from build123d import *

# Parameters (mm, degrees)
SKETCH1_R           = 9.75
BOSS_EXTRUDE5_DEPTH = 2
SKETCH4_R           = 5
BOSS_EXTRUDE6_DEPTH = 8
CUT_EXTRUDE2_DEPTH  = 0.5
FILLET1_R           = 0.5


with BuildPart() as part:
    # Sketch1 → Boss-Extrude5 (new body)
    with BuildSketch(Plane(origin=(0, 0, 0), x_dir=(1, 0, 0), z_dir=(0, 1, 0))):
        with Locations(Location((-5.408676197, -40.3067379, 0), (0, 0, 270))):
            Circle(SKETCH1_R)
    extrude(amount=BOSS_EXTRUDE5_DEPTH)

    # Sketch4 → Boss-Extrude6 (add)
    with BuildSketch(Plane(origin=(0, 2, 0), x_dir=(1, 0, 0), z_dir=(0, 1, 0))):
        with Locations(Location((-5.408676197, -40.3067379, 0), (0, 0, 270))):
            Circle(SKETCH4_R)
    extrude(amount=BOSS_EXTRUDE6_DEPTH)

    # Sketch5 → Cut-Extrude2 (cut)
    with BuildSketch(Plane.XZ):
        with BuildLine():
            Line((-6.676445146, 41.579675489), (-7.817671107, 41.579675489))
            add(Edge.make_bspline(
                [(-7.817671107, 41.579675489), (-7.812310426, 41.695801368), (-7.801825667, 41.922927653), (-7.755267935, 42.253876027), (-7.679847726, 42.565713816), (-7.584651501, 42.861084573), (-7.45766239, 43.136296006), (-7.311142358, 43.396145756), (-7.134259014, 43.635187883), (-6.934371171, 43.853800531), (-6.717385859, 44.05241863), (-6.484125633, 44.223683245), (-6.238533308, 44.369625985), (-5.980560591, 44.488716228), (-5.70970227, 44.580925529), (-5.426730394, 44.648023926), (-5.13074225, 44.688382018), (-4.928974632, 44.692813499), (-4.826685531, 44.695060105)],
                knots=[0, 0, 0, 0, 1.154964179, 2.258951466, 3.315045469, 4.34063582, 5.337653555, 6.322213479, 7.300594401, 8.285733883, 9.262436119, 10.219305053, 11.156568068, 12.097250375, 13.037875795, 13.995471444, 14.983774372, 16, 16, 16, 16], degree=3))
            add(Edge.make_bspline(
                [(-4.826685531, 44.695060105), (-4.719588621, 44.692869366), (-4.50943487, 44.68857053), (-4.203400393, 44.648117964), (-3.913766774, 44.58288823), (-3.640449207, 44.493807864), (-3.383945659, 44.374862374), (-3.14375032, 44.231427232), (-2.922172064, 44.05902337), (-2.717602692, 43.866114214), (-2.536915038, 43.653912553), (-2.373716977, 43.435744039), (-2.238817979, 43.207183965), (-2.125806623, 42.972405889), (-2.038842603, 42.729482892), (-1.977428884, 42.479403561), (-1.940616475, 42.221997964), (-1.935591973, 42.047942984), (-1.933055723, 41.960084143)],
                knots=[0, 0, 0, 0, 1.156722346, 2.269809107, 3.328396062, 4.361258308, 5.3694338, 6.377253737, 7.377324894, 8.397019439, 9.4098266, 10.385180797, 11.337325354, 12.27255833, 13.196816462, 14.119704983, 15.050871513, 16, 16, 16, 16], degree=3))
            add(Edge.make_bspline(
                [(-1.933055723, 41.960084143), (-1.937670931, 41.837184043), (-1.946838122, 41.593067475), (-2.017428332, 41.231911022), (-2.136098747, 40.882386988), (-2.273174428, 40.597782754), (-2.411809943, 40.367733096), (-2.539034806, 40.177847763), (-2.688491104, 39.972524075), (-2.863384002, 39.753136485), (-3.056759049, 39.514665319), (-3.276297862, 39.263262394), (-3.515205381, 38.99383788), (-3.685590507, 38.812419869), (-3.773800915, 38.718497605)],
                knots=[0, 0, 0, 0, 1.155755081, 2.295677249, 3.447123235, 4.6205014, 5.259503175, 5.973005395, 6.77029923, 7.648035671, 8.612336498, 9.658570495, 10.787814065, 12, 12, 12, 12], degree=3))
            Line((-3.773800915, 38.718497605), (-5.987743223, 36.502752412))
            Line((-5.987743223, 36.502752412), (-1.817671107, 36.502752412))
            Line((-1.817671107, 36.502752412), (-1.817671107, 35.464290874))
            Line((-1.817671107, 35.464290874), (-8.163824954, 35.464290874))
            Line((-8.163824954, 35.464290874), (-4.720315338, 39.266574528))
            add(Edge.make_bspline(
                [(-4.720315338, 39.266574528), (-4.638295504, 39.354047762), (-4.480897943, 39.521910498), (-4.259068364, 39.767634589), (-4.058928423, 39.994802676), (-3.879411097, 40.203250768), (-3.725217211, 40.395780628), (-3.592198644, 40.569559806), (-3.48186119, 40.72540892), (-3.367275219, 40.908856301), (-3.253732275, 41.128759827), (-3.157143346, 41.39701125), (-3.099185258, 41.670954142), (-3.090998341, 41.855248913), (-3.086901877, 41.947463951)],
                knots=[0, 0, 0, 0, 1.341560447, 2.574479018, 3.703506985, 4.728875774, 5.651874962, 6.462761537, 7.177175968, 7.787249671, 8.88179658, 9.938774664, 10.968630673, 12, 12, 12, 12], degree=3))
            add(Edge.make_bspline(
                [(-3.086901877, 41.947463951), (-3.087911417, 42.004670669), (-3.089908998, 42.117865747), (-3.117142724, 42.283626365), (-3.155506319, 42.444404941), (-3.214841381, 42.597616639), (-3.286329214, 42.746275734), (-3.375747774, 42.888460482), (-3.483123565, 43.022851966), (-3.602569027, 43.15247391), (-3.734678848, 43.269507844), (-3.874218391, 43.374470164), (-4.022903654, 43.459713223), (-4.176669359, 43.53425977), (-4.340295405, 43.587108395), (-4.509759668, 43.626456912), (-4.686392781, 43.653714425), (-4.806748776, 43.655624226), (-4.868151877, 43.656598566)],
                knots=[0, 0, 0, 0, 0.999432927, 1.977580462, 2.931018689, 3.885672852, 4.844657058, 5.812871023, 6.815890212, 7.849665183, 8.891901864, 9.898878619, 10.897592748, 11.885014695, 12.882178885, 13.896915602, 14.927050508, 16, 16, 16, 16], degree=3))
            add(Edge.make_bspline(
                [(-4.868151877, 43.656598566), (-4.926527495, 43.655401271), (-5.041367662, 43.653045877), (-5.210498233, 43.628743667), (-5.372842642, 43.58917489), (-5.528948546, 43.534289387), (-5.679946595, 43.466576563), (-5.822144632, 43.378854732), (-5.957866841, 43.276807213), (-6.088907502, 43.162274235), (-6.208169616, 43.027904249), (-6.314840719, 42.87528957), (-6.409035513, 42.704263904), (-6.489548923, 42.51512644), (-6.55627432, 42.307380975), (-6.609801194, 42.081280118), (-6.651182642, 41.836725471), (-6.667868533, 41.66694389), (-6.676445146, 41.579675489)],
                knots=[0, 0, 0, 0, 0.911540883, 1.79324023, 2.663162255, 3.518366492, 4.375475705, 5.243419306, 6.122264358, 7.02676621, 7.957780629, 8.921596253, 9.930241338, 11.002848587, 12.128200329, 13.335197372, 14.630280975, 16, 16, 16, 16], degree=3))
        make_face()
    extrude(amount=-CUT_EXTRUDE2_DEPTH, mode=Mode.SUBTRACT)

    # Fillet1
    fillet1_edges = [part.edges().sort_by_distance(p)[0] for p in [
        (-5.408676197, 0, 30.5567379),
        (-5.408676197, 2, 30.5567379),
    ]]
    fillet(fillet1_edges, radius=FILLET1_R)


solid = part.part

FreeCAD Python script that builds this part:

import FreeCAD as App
import Part
import Sketcher
Q = App.Units.Quantity


def edges_at(feature, points):
    """Names of the edges that pass closest to the given points."""
    edges = feature.Shape.Edges
    near = lambda p: min(range(len(edges)), key=lambda i: edges[i].distToShape(Part.Vertex(*p))[0])
    return sorted({f"Edge{near(p) + 1}" for p in points})

doc = App.newDocument("Part")
body = doc.addObject("PartDesign::Body", "Body")

# Sketch on XZ plane
sketch1 = body.newObject("Sketcher::SketchObject", "Sketch")
sketch1.AttachmentSupport = (doc.getObject("XZ_Plane"), [""])
sketch1.MapMode = "FlatFace"
sketch1.addGeometry(Part.Circle(App.Vector(-5.408676, 40.306738, 0), App.Vector(0, 0, 1), 9.75), False)
sketch1.addConstraint([
    Sketcher.Constraint("Diameter", 0, Q("19.5 mm")),
    Sketcher.Constraint("DistanceX", 0, 3, -1, 1, Q("5.408676 mm")),
    Sketcher.Constraint("DistanceY", -1, 1, 0, 3, Q("40.306738 mm")),
])
pad1 = body.newObject("PartDesign::Pad", "Pad")
pad1.Profile = sketch1
pad1.Length = 2
pad1.Reversed = True

# Sketch on XZ plane
sketch2 = body.newObject("Sketcher::SketchObject", "Sketch001")
sketch2.AttachmentSupport = (doc.getObject("XZ_Plane"), [""])
sketch2.MapMode = "FlatFace"
sketch2.AttachmentOffset = App.Placement(App.Vector(0, 0, -2), App.Rotation())
sketch2.addGeometry(Part.Circle(App.Vector(-5.408676, 40.306738, 0), App.Vector(0, 0, 1), 5), False)
sketch2.addConstraint([
    Sketcher.Constraint("Diameter", 0, Q("10 mm")),
    Sketcher.Constraint("DistanceX", 0, 3, -1, 1, Q("5.408676 mm")),
    Sketcher.Constraint("DistanceY", -1, 1, 0, 3, Q("40.306738 mm")),
])
pad2 = body.newObject("PartDesign::Pad", "Pad001")
pad2.Profile = sketch2
pad2.Length = 8
pad2.Reversed = True

# Sketch on XZ plane
sketch3 = body.newObject("Sketcher::SketchObject", "Sketch002")
sketch3.AttachmentSupport = (doc.getObject("XZ_Plane"), [""])
sketch3.MapMode = "FlatFace"
sketch3.addGeometry([
    Part.LineSegment(App.Vector(-7.817671, 41.579675, 0), App.Vector(-6.676445, 41.579675, 0)),  # 0
    Part.BSplineCurve([App.Vector(-4.868152, 43.656599, 0), App.Vector(-4.926527, 43.655401, 0), App.Vector(-5.041368, 43.653046, 0), App.Vector(-5.210498, 43.628744, 0), App.Vector(-5.372843, 43.589175, 0), App.Vector(-5.528949, 43.534289, 0), App.Vector(-5.679947, 43.466577, 0), App.Vector(-5.822145, 43.378855, 0), App.Vector(-5.957867, 43.276807, 0), App.Vector(-6.088908, 43.162274, 0), App.Vector(-6.20817, 43.027904, 0), App.Vector(-6.314841, 42.87529, 0), App.Vector(-6.409036, 42.704264, 0), App.Vector(-6.489549, 42.515126, 0), App.Vector(-6.556274, 42.307381, 0), App.Vector(-6.609801, 42.08128, 0), App.Vector(-6.651183, 41.836725, 0), App.Vector(-6.667869, 41.666944, 0), App.Vector(-6.676445, 41.579675, 0)], [4, 1, 1, 1, 1, 1, 1, 1, 1, 1, 1, 1, 1, 1, 1, 1, 4], [0, 0.911540883, 1.79324023, 2.663162255, 3.518366492, 4.375475705, 5.243419306, 6.122264358, 7.02676621, 7.957780629, 8.921596253, 9.930241338, 11.002848587, 12.128200329, 13.335197372, 14.630280975, 16], False, 3, [1, 1, 1, 1, 1, 1, 1, 1, 1, 1, 1, 1, 1, 1, 1, 1, 1, 1, 1], False),  # 1
    Part.BSplineCurve([App.Vector(-3.086902, 41.947464, 0), App.Vector(-3.087911, 42.004671, 0), App.Vector(-3.089909, 42.117866, 0), App.Vector(-3.117143, 42.283626, 0), App.Vector(-3.155506, 42.444405, 0), App.Vector(-3.214841, 42.597617, 0), App.Vector(-3.286329, 42.746276, 0), App.Vector(-3.375748, 42.88846, 0), App.Vector(-3.483124, 43.022852, 0), App.Vector(-3.602569, 43.152474, 0), App.Vector(-3.734679, 43.269508, 0), App.Vector(-3.874218, 43.37447, 0), App.Vector(-4.022904, 43.459713, 0), App.Vector(-4.176669, 43.53426, 0), App.Vector(-4.340295, 43.587108, 0), App.Vector(-4.50976, 43.626457, 0), App.Vector(-4.686393, 43.653714, 0), App.Vector(-4.806749, 43.655624, 0), App.Vector(-4.868152, 43.656599, 0)], [4, 1, 1, 1, 1, 1, 1, 1, 1, 1, 1, 1, 1, 1, 1, 1, 4], [0, 0.999432927, 1.977580462, 2.931018689, 3.885672852, 4.844657058, 5.812871023, 6.815890212, 7.849665183, 8.891901864, 9.898878619, 10.897592748, 11.885014695, 12.882178885, 13.896915602, 14.927050508, 16], False, 3, [1, 1, 1, 1, 1, 1, 1, 1, 1, 1, 1, 1, 1, 1, 1, 1, 1, 1, 1], False),  # 2
    Part.BSplineCurve([App.Vector(-4.720315, 39.266575, 0), App.Vector(-4.638296, 39.354048, 0), App.Vector(-4.480898, 39.52191, 0), App.Vector(-4.259068, 39.767635, 0), App.Vector(-4.058928, 39.994803, 0), App.Vector(-3.879411, 40.203251, 0), App.Vector(-3.725217, 40.395781, 0), App.Vector(-3.592199, 40.56956, 0), App.Vector(-3.481861, 40.725409, 0), App.Vector(-3.367275, 40.908856, 0), App.Vector(-3.253732, 41.12876, 0), App.Vector(-3.157143, 41.397011, 0), App.Vector(-3.099185, 41.670954, 0), App.Vector(-3.090998, 41.855249, 0), App.Vector(-3.086902, 41.947464, 0)], [4, 1, 1, 1, 1, 1, 1, 1, 1, 1, 1, 1, 4], [0, 1.341560447, 2.574479018, 3.703506985, 4.728875774, 5.651874962, 6.462761537, 7.177175968, 7.787249671, 8.88179658, 9.938774664, 10.968630673, 12], False, 3, [1, 1, 1, 1, 1, 1, 1, 1, 1, 1, 1, 1, 1, 1, 1], False),  # 3
    Part.LineSegment(App.Vector(-4.720315, 39.266575, 0), App.Vector(-8.163825, 35.464291, 0)),  # 4
    Part.LineSegment(App.Vector(-8.163825, 35.464291, 0), App.Vector(-1.817671, 35.464291, 0)),  # 5
    Part.LineSegment(App.Vector(-1.817671, 35.464291, 0), App.Vector(-1.817671, 36.502752, 0)),  # 6
    Part.LineSegment(App.Vector(-1.817671, 36.502752, 0), App.Vector(-5.987743, 36.502752, 0)),  # 7
    Part.LineSegment(App.Vector(-5.987743, 36.502752, 0), App.Vector(-3.773801, 38.718498, 0)),  # 8
    Part.BSplineCurve([App.Vector(-1.933056, 41.960084, 0), App.Vector(-1.937671, 41.837184, 0), App.Vector(-1.946838, 41.593067, 0), App.Vector(-2.017428, 41.231911, 0), App.Vector(-2.136099, 40.882387, 0), App.Vector(-2.273174, 40.597783, 0), App.Vector(-2.41181, 40.367733, 0), App.Vector(-2.539035, 40.177848, 0), App.Vector(-2.688491, 39.972524, 0), App.Vector(-2.863384, 39.753136, 0), App.Vector(-3.056759, 39.514665, 0), App.Vector(-3.276298, 39.263262, 0), App.Vector(-3.515205, 38.993838, 0), App.Vector(-3.685591, 38.81242, 0), App.Vector(-3.773801, 38.718498, 0)], [4, 1, 1, 1, 1, 1, 1, 1, 1, 1, 1, 1, 4], [0, 1.155755081, 2.295677249, 3.447123235, 4.6205014, 5.259503175, 5.973005395, 6.77029923, 7.648035671, 8.612336498, 9.658570495, 10.787814065, 12], False, 3, [1, 1, 1, 1, 1, 1, 1, 1, 1, 1, 1, 1, 1, 1, 1], False),  # 9
    Part.BSplineCurve([App.Vector(-4.826686, 44.69506, 0), App.Vector(-4.719589, 44.692869, 0), App.Vector(-4.509435, 44.688571, 0), App.Vector(-4.2034, 44.648118, 0), App.Vector(-3.913767, 44.582888, 0), App.Vector(-3.640449, 44.493808, 0), App.Vector(-3.383946, 44.374862, 0), App.Vector(-3.14375, 44.231427, 0), App.Vector(-2.922172, 44.059023, 0), App.Vector(-2.717603, 43.866114, 0), App.Vector(-2.536915, 43.653913, 0), App.Vector(-2.373717, 43.435744, 0), App.Vector(-2.238818, 43.207184, 0), App.Vector(-2.125807, 42.972406, 0), App.Vector(-2.038843, 42.729483, 0), App.Vector(-1.977429, 42.479404, 0), App.Vector(-1.940616, 42.221998, 0), App.Vector(-1.935592, 42.047943, 0), App.Vector(-1.933056, 41.960084, 0)], [4, 1, 1, 1, 1, 1, 1, 1, 1, 1, 1, 1, 1, 1, 1, 1, 4], [0, 1.156722346, 2.269809107, 3.328396062, 4.361258308, 5.3694338, 6.377253737, 7.377324894, 8.397019439, 9.4098266, 10.385180797, 11.337325354, 12.27255833, 13.196816462, 14.119704983, 15.050871513, 16], False, 3, [1, 1, 1, 1, 1, 1, 1, 1, 1, 1, 1, 1, 1, 1, 1, 1, 1, 1, 1], False),  # 10
    Part.BSplineCurve([App.Vector(-7.817671, 41.579675, 0), App.Vector(-7.81231, 41.695801, 0), App.Vector(-7.801826, 41.922928, 0), App.Vector(-7.755268, 42.253876, 0), App.Vector(-7.679848, 42.565714, 0), App.Vector(-7.584652, 42.861085, 0), App.Vector(-7.457662, 43.136296, 0), App.Vector(-7.311142, 43.396146, 0), App.Vector(-7.134259, 43.635188, 0), App.Vector(-6.934371, 43.853801, 0), App.Vector(-6.717386, 44.052419, 0), App.Vector(-6.484126, 44.223683, 0), App.Vector(-6.238533, 44.369626, 0), App.Vector(-5.980561, 44.488716, 0), App.Vector(-5.709702, 44.580926, 0), App.Vector(-5.42673, 44.648024, 0), App.Vector(-5.130742, 44.688382, 0), App.Vector(-4.928975, 44.692813, 0), App.Vector(-4.826686, 44.69506, 0)], [4, 1, 1, 1, 1, 1, 1, 1, 1, 1, 1, 1, 1, 1, 1, 1, 4], [0, 1.154964179, 2.258951466, 3.315045469, 4.34063582, 5.337653555, 6.322213479, 7.300594401, 8.285733883, 9.262436119, 10.219305053, 11.156568068, 12.097250375, 13.037875795, 13.995471444, 14.983774372, 16], False, 3, [1, 1, 1, 1, 1, 1, 1, 1, 1, 1, 1, 1, 1, 1, 1, 1, 1, 1, 1], False),  # 11
], False)
sketch3.addConstraint([
    Sketcher.Constraint("Block", 1),
    Sketcher.Constraint("Block", 2),
    Sketcher.Constraint("Block", 3),
    Sketcher.Constraint("Block", 9),
    Sketcher.Constraint("Block", 10),
    Sketcher.Constraint("Block", 11),
    Sketcher.Constraint("Coincident", 0, 2, 1, 2),
    Sketcher.Constraint("Coincident", 3, 1, 4, 1),
    Sketcher.Constraint("Coincident", 4, 2, 5, 1),
    Sketcher.Constraint("Coincident", 5, 2, 6, 1),
    Sketcher.Constraint("Coincident", 6, 2, 7, 1),
    Sketcher.Constraint("Coincident", 7, 2, 8, 1),
    Sketcher.Constraint("Coincident", 8, 2, 9, 2),
    Sketcher.Constraint("Coincident", 11, 1, 0, 1),
    Sketcher.Constraint("Horizontal", 5),
    Sketcher.Constraint("Vertical", 6),
    Sketcher.Constraint("Horizontal", 7),
    Sketcher.Constraint("DistanceY", 6, 1, 6, 2, Q("1.038462 mm")),
    Sketcher.Constraint("DistanceX", 0, 2, 7, 2, Q("0.688702 mm")),
    Sketcher.Constraint("DistanceX", 5, 1, 5, 2, Q("6.346154 mm")),
    Sketcher.Constraint("DistanceX", 7, 2, 7, 1, Q("4.170072 mm")),
    Sketcher.Constraint("DistanceY", -1, 1, 4, 2, Q("35.464291 mm")),
])
pocket1 = body.newObject("PartDesign::Pocket", "Pocket")
pocket1.Profile = sketch3
pocket1.Length = 0.5
doc.recompute()

fillet = body.newObject("PartDesign::Fillet", "Fillet")
fillet.Base = (pocket1, edges_at(pocket1, [(-5.409, 0, 30.557), (-5.409, 2, 30.557)]))
fillet.Radius = 0.5

doc.recompute()
